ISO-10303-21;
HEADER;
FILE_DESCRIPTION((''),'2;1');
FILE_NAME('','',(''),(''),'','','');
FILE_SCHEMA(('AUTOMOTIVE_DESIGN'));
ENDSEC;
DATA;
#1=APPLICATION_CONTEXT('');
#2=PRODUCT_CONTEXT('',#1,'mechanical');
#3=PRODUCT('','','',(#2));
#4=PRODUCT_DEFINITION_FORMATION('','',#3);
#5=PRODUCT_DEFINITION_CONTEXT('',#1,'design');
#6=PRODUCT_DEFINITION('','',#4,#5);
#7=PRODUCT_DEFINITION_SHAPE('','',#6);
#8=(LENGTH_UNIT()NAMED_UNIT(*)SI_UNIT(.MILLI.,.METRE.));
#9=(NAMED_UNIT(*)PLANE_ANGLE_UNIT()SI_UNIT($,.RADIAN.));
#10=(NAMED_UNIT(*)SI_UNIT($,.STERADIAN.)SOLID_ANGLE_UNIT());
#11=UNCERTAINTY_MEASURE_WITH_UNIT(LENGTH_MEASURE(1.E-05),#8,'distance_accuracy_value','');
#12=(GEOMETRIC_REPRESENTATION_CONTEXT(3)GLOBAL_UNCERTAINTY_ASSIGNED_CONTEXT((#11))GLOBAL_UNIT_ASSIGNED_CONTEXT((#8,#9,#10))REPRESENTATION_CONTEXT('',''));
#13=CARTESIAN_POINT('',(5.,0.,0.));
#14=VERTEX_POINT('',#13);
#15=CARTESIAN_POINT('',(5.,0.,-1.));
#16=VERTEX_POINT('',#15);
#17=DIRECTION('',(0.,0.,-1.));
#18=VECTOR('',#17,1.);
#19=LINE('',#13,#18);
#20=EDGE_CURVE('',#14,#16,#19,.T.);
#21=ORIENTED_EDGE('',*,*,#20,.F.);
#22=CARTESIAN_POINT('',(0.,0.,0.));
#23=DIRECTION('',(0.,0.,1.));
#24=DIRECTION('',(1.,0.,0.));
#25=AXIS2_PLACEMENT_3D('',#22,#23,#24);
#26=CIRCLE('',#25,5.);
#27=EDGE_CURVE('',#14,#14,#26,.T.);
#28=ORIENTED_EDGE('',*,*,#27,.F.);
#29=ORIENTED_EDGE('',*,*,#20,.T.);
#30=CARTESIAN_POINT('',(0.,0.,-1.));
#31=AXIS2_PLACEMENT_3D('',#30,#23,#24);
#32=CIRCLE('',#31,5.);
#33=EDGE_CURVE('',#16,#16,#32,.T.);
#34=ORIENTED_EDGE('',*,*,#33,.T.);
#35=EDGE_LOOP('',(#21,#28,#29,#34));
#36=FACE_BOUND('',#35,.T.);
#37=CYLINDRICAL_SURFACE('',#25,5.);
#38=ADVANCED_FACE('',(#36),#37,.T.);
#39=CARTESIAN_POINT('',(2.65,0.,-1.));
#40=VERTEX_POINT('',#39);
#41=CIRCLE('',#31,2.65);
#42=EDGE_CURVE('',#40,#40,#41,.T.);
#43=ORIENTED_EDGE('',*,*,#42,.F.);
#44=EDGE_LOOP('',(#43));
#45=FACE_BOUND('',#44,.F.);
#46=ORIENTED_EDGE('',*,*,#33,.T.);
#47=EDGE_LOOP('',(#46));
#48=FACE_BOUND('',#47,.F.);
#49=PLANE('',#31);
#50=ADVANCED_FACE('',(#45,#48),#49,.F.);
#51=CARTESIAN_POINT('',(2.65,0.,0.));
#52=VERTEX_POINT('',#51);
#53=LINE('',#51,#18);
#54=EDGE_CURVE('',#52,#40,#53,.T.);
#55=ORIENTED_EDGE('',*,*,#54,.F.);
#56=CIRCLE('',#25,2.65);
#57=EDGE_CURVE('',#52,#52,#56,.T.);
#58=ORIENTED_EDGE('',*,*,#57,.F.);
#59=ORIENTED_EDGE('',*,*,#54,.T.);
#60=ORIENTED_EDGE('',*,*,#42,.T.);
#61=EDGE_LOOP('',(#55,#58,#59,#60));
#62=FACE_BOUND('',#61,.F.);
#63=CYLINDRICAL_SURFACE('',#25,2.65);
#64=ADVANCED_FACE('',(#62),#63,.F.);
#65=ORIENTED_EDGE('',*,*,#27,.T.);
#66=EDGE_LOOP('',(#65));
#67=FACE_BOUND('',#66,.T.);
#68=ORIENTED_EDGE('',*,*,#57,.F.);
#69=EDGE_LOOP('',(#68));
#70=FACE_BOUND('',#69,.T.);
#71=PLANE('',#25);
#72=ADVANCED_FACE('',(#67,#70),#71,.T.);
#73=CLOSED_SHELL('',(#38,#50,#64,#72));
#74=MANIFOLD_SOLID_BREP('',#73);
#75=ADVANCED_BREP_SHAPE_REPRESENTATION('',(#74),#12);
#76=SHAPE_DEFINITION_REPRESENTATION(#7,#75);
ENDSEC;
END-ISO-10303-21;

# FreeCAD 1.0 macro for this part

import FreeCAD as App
import Part
import Sketcher
from FreeCAD import Vector
Q = App.Units.Quantity

doc = App.newDocument("Part")
params = doc.addObject("Spreadsheet::Sheet", "Params")
for row, (alias, value) in enumerate([
    ("sketch1_diameter", "10 mm"),
    ("sketch1_diameter2", "5.3 mm"),
    ("pad1_length", "1 mm"),
], start=1):
    params.set(f"A{row}", alias)
    params.set(f"B{row}", "=" + value)
    params.setAlias(f"B{row}", alias)

body = doc.addObject("PartDesign::Body", "Body")

# Sketch on XY plane
sketch1 = doc.addObject("Sketcher::SketchObject", "Sketch")
body.addObject(sketch1)
sketch1.AttachmentSupport = (doc.XY_Plane, [""])
sketch1.MapMode = "FlatFace"
sketch1.addGeometry([
    Part.Circle(Vector(0, 0, 0), Vector(0, 0, 1), 5),
    Part.Circle(Vector(0, 0, 0), Vector(0, 0, 1), 2.6),
], False)
sketch1.addConstraint([
    Sketcher.Constraint("Coincident", 0, 3, -1, 1),
    Sketcher.Constraint("Coincident", 1, 3, -1, 1),
    Sketcher.Constraint("Diameter", 0, Q("10 mm")),
    Sketcher.Constraint("Diameter", 1, Q("5.3 mm")),
])
sketch1.setExpression("Constraints[2]", "Params.sketch1_diameter")
sketch1.setExpression("Constraints[3]", "Params.sketch1_diameter2")
pad1 = doc.addObject("PartDesign::Pad", "Pad")
body.addObject(pad1)
pad1.Profile = sketch1
pad1.setExpression("Length", "Params.pad1_length")
pad1.Reversed = True

doc.recompute()
